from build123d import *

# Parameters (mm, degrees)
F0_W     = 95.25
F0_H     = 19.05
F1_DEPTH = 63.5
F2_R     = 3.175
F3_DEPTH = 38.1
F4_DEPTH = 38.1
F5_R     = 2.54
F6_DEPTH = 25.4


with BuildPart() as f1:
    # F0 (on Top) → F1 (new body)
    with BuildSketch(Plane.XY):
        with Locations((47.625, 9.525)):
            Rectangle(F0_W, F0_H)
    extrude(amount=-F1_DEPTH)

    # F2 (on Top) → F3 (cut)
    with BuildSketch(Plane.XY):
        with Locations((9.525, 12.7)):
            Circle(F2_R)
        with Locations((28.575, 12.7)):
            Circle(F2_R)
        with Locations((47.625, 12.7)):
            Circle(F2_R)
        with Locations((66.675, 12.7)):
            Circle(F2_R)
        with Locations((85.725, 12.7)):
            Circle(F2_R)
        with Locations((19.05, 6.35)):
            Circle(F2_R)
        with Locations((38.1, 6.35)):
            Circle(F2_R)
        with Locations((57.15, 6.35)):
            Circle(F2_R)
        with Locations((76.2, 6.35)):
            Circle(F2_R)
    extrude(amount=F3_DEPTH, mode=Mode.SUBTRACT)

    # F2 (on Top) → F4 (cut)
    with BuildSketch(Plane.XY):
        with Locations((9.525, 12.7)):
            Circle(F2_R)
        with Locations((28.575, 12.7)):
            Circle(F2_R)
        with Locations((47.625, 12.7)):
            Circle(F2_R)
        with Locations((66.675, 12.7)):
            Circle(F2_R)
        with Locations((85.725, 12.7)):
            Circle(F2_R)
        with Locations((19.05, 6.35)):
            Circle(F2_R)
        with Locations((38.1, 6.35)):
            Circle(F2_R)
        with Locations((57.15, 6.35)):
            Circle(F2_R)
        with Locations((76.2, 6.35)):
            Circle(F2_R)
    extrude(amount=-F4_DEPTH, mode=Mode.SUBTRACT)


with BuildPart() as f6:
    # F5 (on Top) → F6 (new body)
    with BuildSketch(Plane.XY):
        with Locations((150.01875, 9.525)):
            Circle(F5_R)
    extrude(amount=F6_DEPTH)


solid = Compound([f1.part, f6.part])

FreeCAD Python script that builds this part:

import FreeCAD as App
import Part
import Sketcher
from FreeCAD import Vector
Q = App.Units.Quantity

doc = App.newDocument("Part")
body = doc.addObject("PartDesign::Body", "Body")

# Sketch on XY plane
sketch1 = body.newObject("Sketcher::SketchObject", "Sketch")
sketch1.AttachmentSupport = (doc.getObject("XY_Plane"), [""])
sketch1.MapMode = "FlatFace"
sketch1.addGeometry(Part.LineSegment(Vector(0, 19, 0), Vector(0, 0, 0)), False)
sketch1.addGeometry(Part.LineSegment(Vector(0, 0, 0), Vector(95, 0, 0)), False)
sketch1.addGeometry(Part.LineSegment(Vector(95, 0, 0), Vector(95, 19, 0)), False)
sketch1.addGeometry(Part.LineSegment(Vector(95, 19, 0), Vector(0, 19, 0)), False)
sketch1.addConstraint(Sketcher.Constraint("Coincident", 0, 2, 1, 1))
sketch1.addConstraint(Sketcher.Constraint("Coincident", 1, 2, 2, 1))
sketch1.addConstraint(Sketcher.Constraint("Coincident", 2, 2, 3, 1))
sketch1.addConstraint(Sketcher.Constraint("Coincident", 3, 2, 0, 1))
sketch1.addConstraint(Sketcher.Constraint("Vertical", 0))
sketch1.addConstraint(Sketcher.Constraint("Horizontal", 1))
sketch1.addConstraint(Sketcher.Constraint("Vertical", 2))
sketch1.addConstraint(Sketcher.Constraint("Horizontal", 3))
sketch1.addConstraint(Sketcher.Constraint("Coincident", 0, 2, -1, 1))
sketch1.addConstraint(Sketcher.Constraint("DistanceX", 1, 1, 1, 2, Q("3.75 in")))
sketch1.addConstraint(Sketcher.Constraint("DistanceY", 0, 2, 0, 1, Q("0.75 in")))
pad1 = body.newObject("PartDesign::Pad", "Pad")
pad1.Profile = sketch1
pad1.Length = Q("2.5 in")
pad1.Reversed = True

# Sketch on XY plane
sketch2 = body.newObject("Sketcher::SketchObject", "Sketch001")
sketch2.AttachmentSupport = (doc.getObject("XY_Plane"), [""])
sketch2.MapMode = "FlatFace"
sketch2.addGeometry(Part.Circle(Vector(9.5, 12.7, 0), Vector(0, 0, 1), 3.2), False)
sketch2.addGeometry(Part.Circle(Vector(28.6, 12.7, 0), Vector(0, 0, 1), 3.2), False)
sketch2.addGeometry(Part.Circle(Vector(47.6, 12.7, 0), Vector(0, 0, 1), 3.2), False)
sketch2.addGeometry(Part.Circle(Vector(66.7, 12.7, 0), Vector(0, 0, 1), 3.2), False)
sketch2.addGeometry(Part.Circle(Vector(85.7, 12.7, 0), Vector(0, 0, 1), 3.2), False)
sketch2.addGeometry(Part.Circle(Vector(19.1, 6.3, 0), Vector(0, 0, 1), 3.2), False)
sketch2.addGeometry(Part.Circle(Vector(38.1, 6.3, 0), Vector(0, 0, 1), 3.2), False)
sketch2.addGeometry(Part.Circle(Vector(57.1, 6.3, 0), Vector(0, 0, 1), 3.2), False)
sketch2.addGeometry(Part.Circle(Vector(76.2, 6.3, 0), Vector(0, 0, 1), 3.2), False)
sketch2.addConstraint(Sketcher.Constraint("Equal", 0, 1))
sketch2.addConstraint(Sketcher.Constraint("Equal", 1, 2))
sketch2.addConstraint(Sketcher.Constraint("Equal", 2, 3))
sketch2.addConstraint(Sketcher.Constraint("Equal", 3, 4))
sketch2.addConstraint(Sketcher.Constraint("Equal", 4, 5))
sketch2.addConstraint(Sketcher.Constraint("Equal", 5, 6))
sketch2.addConstraint(Sketcher.Constraint("Equal", 6, 7))
sketch2.addConstraint(Sketcher.Constraint("Equal", 7, 8))
sketch2.addConstraint(Sketcher.Constraint("Horizontal", 0, 3, 1, 3))
sketch2.addConstraint(Sketcher.Constraint("Horizontal", 1, 3, 2, 3))
sketch2.addConstraint(Sketcher.Constraint("Horizontal", 2, 3, 3, 3))
sketch2.addConstraint(Sketcher.Constraint("Horizontal", 3, 3, 4, 3))
sketch2.addConstraint(Sketcher.Constraint("Horizontal", 5, 3, 6, 3))
sketch2.addConstraint(Sketcher.Constraint("Horizontal", 6, 3, 7, 3))
sketch2.addConstraint(Sketcher.Constraint("Horizontal", 7, 3, 8, 3))
sketch2.addConstraint(Sketcher.Constraint("Diameter", 0, Q("0.25 in")))
sketch2.addConstraint(Sketcher.Constraint("DistanceX", -1, 1, 8, 3, Q("3 in")))
sketch2.addConstraint(Sketcher.Constraint("DistanceX", 0, 3, 4, 3, Q("3 in")))
sketch2.addConstraint(Sketcher.Constraint("DistanceY", -1, 1, 0, 3, Q("0.5 in")))
sketch2.addConstraint(Sketcher.Constraint("DistanceX", -1, 1, 6, 3, Q("1.5 in")))
sketch2.addConstraint(Sketcher.Constraint("DistanceX", 0, 3, 2, 3, Q("1.5 in")))
sketch2.addConstraint(Sketcher.Constraint("DistanceX", 1, 3, 3, 3, Q("1.5 in")))
sketch2.addConstraint(Sketcher.Constraint("DistanceX", -1, 1, 5, 3, Q("0.75 in")))
sketch2.addConstraint(Sketcher.Constraint("DistanceY", -1, 1, 5, 3, Q("0.25 in")))
sketch2.addConstraint(Sketcher.Constraint("DistanceX", -1, 1, 7, 3, Q("2.25 in")))
sketch2.addConstraint(Sketcher.Constraint("DistanceX", 0, 3, 1, 3, Q("0.75 in")))
sketch2.addConstraint(Sketcher.Constraint("DistanceX", -1, 1, 0, 3, Q("0.375 in")))
pocket1 = body.newObject("PartDesign::Pocket", "Pocket")
pocket1.Profile = sketch2
pocket1.Length = Q("1.5 in")
pocket1.Reversed = True

# Sketch on XY plane
sketch3 = body.newObject("Sketcher::SketchObject", "Sketch002")
sketch3.AttachmentSupport = (doc.getObject("XY_Plane"), [""])
sketch3.MapMode = "FlatFace"
sketch3.addGeometry(Part.Circle(Vector(9.5, 12.7, 0), Vector(0, 0, 1), 3.2), False)
sketch3.addGeometry(Part.Circle(Vector(28.6, 12.7, 0), Vector(0, 0, 1), 3.2), False)
sketch3.addGeometry(Part.Circle(Vector(47.6, 12.7, 0), Vector(0, 0, 1), 3.2), False)
sketch3.addGeometry(Part.Circle(Vector(66.7, 12.7, 0), Vector(0, 0, 1), 3.2), False)
sketch3.addGeometry(Part.Circle(Vector(85.7, 12.7, 0), Vector(0, 0, 1), 3.2), False)
sketch3.addGeometry(Part.Circle(Vector(19.1, 6.3, 0), Vector(0, 0, 1), 3.2), False)
sketch3.addGeometry(Part.Circle(Vector(38.1, 6.3, 0), Vector(0, 0, 1), 3.2), False)
sketch3.addGeometry(Part.Circle(Vector(57.1, 6.3, 0), Vector(0, 0, 1), 3.2), False)
sketch3.addGeometry(Part.Circle(Vector(76.2, 6.3, 0), Vector(0, 0, 1), 3.2), False)
sketch3.addConstraint(Sketcher.Constraint("Equal", 0, 1))
sketch3.addConstraint(Sketcher.Constraint("Equal", 1, 2))
sketch3.addConstraint(Sketcher.Constraint("Equal", 2, 3))
sketch3.addConstraint(Sketcher.Constraint("Equal", 3, 4))
sketch3.addConstraint(Sketcher.Constraint("Equal", 4, 5))
sketch3.addConstraint(Sketcher.Constraint("Equal", 5, 6))
sketch3.addConstraint(Sketcher.Constraint("Equal", 6, 7))
sketch3.addConstraint(Sketcher.Constraint("Equal", 7, 8))
sketch3.addConstraint(Sketcher.Constraint("Horizontal", 0, 3, 1, 3))
sketch3.addConstraint(Sketcher.Constraint("Horizontal", 1, 3, 2, 3))
sketch3.addConstraint(Sketcher.Constraint("Horizontal", 2, 3, 3, 3))
sketch3.addConstraint(Sketcher.Constraint("Horizontal", 3, 3, 4, 3))
sketch3.addConstraint(Sketcher.Constraint("Horizontal", 5, 3, 6, 3))
sketch3.addConstraint(Sketcher.Constraint("Horizontal", 6, 3, 7, 3))
sketch3.addConstraint(Sketcher.Constraint("Horizontal", 7, 3, 8, 3))
sketch3.addConstraint(Sketcher.Constraint("Diameter", 0, Q("0.25 in")))
sketch3.addConstraint(Sketcher.Constraint("DistanceX", -1, 1, 8, 3, Q("3 in")))
sketch3.addConstraint(Sketcher.Constraint("DistanceX", 0, 3, 4, 3, Q("3 in")))
sketch3.addConstraint(Sketcher.Constraint("DistanceY", -1, 1, 0, 3, Q("0.5 in")))
sketch3.addConstraint(Sketcher.Constraint("DistanceX", -1, 1, 6, 3, Q("1.5 in")))
sketch3.addConstraint(Sketcher.Constraint("DistanceX", 0, 3, 2, 3, Q("1.5 in")))
sketch3.addConstraint(Sketcher.Constraint("DistanceX", 1, 3, 3, 3, Q("1.5 in")))
sketch3.addConstraint(Sketcher.Constraint("DistanceX", -1, 1, 5, 3, Q("0.75 in")))
sketch3.addConstraint(Sketcher.Constraint("DistanceY", -1, 1, 5, 3, Q("0.25 in")))
sketch3.addConstraint(Sketcher.Constraint("DistanceX", -1, 1, 7, 3, Q("2.25 in")))
sketch3.addConstraint(Sketcher.Constraint("DistanceX", 0, 3, 1, 3, Q("0.75 in")))
sketch3.addConstraint(Sketcher.Constraint("DistanceX", -1, 1, 0, 3, Q("0.375 in")))
pocket2 = body.newObject("PartDesign::Pocket", "Pocket001")
pocket2.Profile = sketch3
pocket2.Length = Q("1.5 in")
body2 = doc.addObject("PartDesign::Body", "Body001")

# Sketch on XY plane
sketch4 = body2.newObject("Sketcher::SketchObject", "Sketch003")
sketch4.AttachmentSupport = (doc.getObject("XY_Plane001"), [""])
sketch4.MapMode = "FlatFace"
sketch4.addGeometry(Part.Circle(Vector(150, 9.5, 0), Vector(0, 0, 1), 2.5), False)
sketch4.addConstraint(Sketcher.Constraint("Diameter", 0, Q("0.2 in")))
sketch4.addConstraint(Sketcher.Constraint("DistanceX", -1, 1, 0, 3, Q("5.90625 in")))
sketch4.addConstraint(Sketcher.Constraint("DistanceY", -1, 1, 0, 3, Q("0.375 in")))
pad2 = body2.newObject("PartDesign::Pad", "Pad001")
pad2.Profile = sketch4
pad2.Length = Q("1 in")

doc.recompute()
